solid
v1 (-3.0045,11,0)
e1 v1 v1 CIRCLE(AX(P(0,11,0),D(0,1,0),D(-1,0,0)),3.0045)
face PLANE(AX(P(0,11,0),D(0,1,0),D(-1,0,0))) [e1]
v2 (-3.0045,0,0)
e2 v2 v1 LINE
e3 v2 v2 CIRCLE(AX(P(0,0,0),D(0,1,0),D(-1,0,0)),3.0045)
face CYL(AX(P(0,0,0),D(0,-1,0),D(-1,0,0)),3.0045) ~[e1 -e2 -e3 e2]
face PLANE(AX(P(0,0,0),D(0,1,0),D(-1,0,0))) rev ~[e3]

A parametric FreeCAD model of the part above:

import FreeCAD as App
import Part
import Sketcher

V = App.Vector
Q = App.Units.Quantity

doc = App.newDocument("Part")
params = doc.addObject("Spreadsheet::Sheet", "Params")
for row, (alias, value) in enumerate([
    ("pad1_length", "11 mm"),
], start=1):
    params.set(f"A{row}", alias)
    params.set(f"B{row}", "=" + value)
    params.setAlias(f"B{row}", alias)

body = doc.addObject("PartDesign::Body", "Body")

sketch1 = body.newObject("Sketcher::SketchObject", "Sketch")
sketch1.AttachmentSupport = (doc.getObject("XZ_Plane"), [""])
sketch1.MapMode = "FlatFace"
sketch1.addGeometry(Part.Circle(V(0, 0, 0), V(0, 0, 1), 3.0045), False)
sketch1.addConstraint(Sketcher.Constraint("Coincident", 0, 3, -1, 1))
sketch1.addConstraint(Sketcher.Constraint("Diameter", 0, Q("6.009 mm")))
pad1 = body.newObject("PartDesign::Pad", "Pad")
pad1.Profile = sketch1
pad1.setExpression("Length", "Params.pad1_length")
pad1.Reversed = True

doc.recompute()
